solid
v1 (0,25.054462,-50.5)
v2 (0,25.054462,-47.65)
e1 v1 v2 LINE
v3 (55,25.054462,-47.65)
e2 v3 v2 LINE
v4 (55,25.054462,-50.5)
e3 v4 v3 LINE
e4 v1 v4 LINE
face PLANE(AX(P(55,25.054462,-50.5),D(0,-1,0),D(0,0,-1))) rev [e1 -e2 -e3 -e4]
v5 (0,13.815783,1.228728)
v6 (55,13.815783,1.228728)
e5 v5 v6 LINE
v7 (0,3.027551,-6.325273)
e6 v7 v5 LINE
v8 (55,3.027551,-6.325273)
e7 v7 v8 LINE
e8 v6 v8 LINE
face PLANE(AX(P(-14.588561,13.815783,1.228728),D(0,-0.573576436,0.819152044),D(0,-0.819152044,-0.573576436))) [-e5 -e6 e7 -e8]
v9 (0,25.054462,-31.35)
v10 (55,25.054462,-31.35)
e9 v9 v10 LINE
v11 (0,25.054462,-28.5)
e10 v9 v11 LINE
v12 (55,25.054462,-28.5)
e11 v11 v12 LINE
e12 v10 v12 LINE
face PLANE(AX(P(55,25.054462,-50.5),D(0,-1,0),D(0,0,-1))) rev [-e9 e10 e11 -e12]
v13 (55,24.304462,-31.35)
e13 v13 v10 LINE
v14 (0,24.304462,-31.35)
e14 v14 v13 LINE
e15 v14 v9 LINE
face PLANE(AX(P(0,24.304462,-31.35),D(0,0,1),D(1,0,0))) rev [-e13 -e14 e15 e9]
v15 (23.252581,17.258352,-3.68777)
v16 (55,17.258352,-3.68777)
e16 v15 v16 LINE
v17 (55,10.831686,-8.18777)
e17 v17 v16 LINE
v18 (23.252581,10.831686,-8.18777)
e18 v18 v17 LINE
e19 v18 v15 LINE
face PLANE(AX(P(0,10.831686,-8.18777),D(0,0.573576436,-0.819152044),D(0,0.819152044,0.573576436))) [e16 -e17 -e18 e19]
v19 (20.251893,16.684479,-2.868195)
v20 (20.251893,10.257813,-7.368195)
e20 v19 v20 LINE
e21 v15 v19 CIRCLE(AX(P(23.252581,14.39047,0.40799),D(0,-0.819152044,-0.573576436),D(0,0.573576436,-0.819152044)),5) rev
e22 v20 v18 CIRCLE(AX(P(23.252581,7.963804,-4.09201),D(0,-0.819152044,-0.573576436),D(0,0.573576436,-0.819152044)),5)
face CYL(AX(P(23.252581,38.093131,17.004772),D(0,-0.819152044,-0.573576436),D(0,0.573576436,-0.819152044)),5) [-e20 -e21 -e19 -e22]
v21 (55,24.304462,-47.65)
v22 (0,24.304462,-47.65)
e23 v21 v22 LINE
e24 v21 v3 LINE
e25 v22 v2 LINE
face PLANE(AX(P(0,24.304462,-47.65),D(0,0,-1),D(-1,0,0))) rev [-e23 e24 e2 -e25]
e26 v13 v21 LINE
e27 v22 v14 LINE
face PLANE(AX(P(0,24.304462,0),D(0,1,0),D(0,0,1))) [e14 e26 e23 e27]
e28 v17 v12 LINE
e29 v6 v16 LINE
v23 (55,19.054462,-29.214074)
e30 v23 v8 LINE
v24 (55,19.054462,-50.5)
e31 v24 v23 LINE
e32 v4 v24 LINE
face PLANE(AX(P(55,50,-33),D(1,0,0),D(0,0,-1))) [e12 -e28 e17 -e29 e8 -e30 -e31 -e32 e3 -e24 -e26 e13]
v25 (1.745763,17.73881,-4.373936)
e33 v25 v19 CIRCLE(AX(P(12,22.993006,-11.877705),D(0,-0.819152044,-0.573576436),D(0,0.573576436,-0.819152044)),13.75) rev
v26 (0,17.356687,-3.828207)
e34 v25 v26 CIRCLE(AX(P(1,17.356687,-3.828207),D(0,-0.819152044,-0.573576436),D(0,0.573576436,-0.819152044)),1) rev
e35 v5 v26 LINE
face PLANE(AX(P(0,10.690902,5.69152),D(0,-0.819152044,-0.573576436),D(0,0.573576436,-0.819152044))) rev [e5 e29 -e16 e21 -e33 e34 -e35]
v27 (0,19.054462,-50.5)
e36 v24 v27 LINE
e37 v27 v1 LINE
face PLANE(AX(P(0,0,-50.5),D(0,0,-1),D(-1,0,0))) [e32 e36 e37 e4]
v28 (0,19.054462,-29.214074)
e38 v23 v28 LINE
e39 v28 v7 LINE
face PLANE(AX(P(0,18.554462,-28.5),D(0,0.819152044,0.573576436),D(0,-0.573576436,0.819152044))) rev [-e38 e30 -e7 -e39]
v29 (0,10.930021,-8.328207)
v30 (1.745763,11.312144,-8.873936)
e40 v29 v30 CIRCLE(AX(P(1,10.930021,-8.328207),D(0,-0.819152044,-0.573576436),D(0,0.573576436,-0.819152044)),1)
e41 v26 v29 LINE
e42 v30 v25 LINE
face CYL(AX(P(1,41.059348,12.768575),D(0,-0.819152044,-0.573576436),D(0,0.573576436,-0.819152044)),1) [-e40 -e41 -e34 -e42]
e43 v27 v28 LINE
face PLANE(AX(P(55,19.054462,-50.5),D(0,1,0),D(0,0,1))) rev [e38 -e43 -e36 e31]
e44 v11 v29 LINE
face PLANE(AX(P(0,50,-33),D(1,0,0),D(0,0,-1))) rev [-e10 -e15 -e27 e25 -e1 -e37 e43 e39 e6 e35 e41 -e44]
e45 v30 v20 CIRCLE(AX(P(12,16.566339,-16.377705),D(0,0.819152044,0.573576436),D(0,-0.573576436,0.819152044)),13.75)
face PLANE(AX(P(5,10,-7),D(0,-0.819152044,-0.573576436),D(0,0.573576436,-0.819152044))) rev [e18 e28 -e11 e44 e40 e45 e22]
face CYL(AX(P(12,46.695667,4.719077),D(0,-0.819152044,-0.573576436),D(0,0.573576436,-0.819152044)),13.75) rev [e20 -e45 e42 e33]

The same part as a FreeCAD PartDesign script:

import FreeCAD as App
import Part
import Sketcher
from FreeCAD import Vector
Q = App.Units.Quantity


def edges_at(feature, points):
    """Names of the edges that pass closest to the given points."""
    edges = feature.Shape.Edges
    near = lambda p: min(range(len(edges)), key=lambda i: edges[i].distToShape(Part.Vertex(*p))[0])
    return sorted({f"Edge{near(p) + 1}" for p in points})


def add_polygon(sketch, points):
    """Adds a closed chain of lines whose ends are joined by coincident constraints."""
    first, n = sketch.GeometryCount, len(points)
    for a, b in zip(points, points[1:] + points[:1]):
        sketch.addGeometry(Part.LineSegment(App.Vector(*a, 0), App.Vector(*b, 0)), False)
    for i in range(n):
        sketch.addConstraint(Sketcher.Constraint("Coincident", first + i, 2, first + (i + 1) % n, 1))

doc = App.newDocument("Part")
body = doc.addObject("PartDesign::Body", "Body")

# Sketch on XZ plane
sketch1 = body.newObject("Sketcher::SketchObject", "Sketch")
sketch1.AttachmentSupport = (doc.getObject("XZ_Plane"), [""])
sketch1.MapMode = "FlatFace"
add_polygon(sketch1, [(0, -33), (0, 0), (55, 0), (55, -33)])  # lines 0-3
sketch1.addConstraint([
    Sketcher.Constraint("Vertical", 0),
    Sketcher.Constraint("Horizontal", 1),
    Sketcher.Constraint("Vertical", 2),
    Sketcher.Constraint("Horizontal", 3),
    Sketcher.Constraint("Coincident", 0, 2, -1, 1),
    Sketcher.Constraint("DistanceX", 1, 1, 1, 2, Q("55 mm")),
    Sketcher.Constraint("DistanceY", 0, 1, 0, 2, Q("33 mm")),
])
pad1 = body.newObject("PartDesign::Pad", "Pad")
pad1.Profile = sketch1
pad1.Length = 50
pad1.Reversed = True

# Sketch on YZ plane
sketch2 = body.newObject("Sketcher::SketchObject", "Sketch001")
sketch2.AttachmentSupport = (doc.getObject("YZ_Plane"), [""])
sketch2.MapMode = "FlatFace"
sketch2.AttachmentOffset = App.Placement(Vector(0, 0, 55), App.Rotation())
add_polygon(sketch2, [(80, -19), (51, 22), (10, -7), (39, -48)])  # lines 0-3
sketch2.addConstraint([
    Sketcher.Constraint("Perpendicular", 0, 1),
    Sketcher.Constraint("Perpendicular", 1, 2),
    Sketcher.Constraint("Perpendicular", 2, 3),
    Sketcher.Constraint("Equal", 0, 1),
    Sketcher.Constraint("Angle", 0, Q("125 deg")),
    Sketcher.Constraint("Distance", 0, Q("50 mm")),
    Sketcher.Constraint("DistanceX", -1, 1, 1, 2, Q("10 mm")),
    Sketcher.Constraint("DistanceY", 1, 2, -1, 1, Q("7 mm")),
])
pocket1 = body.newObject("PartDesign::Pocket", "Pocket")
pocket1.Profile = sketch2
pocket1.Length = 50

# Sketch on YZ plane
sketch3 = body.newObject("Sketcher::SketchObject", "Sketch002")
sketch3.AttachmentSupport = (doc.getObject("YZ_Plane"), [""])
sketch3.MapMode = "FlatFace"
sketch3.AttachmentOffset = App.Placement(Vector(0, 0, 55), App.Rotation())
add_polygon(sketch3, [(25, 3), (19, 11), (11, 6), (16, -2)])  # lines 0-3
sketch3.addConstraint([
    Sketcher.Constraint("Perpendicular", 0, 1),
    Sketcher.Constraint("Perpendicular", 1, 2),
    Sketcher.Constraint("Perpendicular", 2, 3),
    Sketcher.Constraint("Equal", 0, 1),
    Sketcher.Constraint("Angle", 0, Q("125 deg")),
    Sketcher.Constraint("Distance", 0, Q("10 mm")),
    Sketcher.Constraint("DistanceY", 2, 2, -1, 1, Q("2.5 mm")),
    Sketcher.Constraint("DistanceX", -1, 1, 1, 2, Q("10.690902 mm")),
])
pocket2 = body.newObject("PartDesign::Pocket", "Pocket001")
pocket2.Profile = sketch3
pocket2.Type = "ThroughAll"

# Sketch on YZ plane
sketch4 = body.newObject("Sketcher::SketchObject", "Sketch003")
sketch4.AttachmentSupport = (doc.getObject("YZ_Plane"), [""])
sketch4.MapMode = "FlatFace"
sketch4.AttachmentOffset = App.Placement(Vector(0, 0, 55), App.Rotation())
add_polygon(sketch4, [(16.4, -2.5), (10, -7), (10.8, -8.2), (17.3, -3.7)])  # lines 0-3
sketch4.addConstraint([
    Sketcher.Constraint("Perpendicular", 0, 1),
    Sketcher.Constraint("Perpendicular", 1, 2),
    Sketcher.Constraint("Perpendicular", 2, 3),
    Sketcher.Constraint("Angle", 0, Q("-145 deg")),
    Sketcher.Constraint("DistanceX", -1, 1, 0, 2, Q("10 mm")),
    Sketcher.Constraint("DistanceY", 0, 2, -1, 1, Q("7 mm")),
    Sketcher.Constraint("DistanceY", 3, 2, -1, 1, Q("2.5 mm")),
    Sketcher.Constraint("Distance", 1, Q("1.45 mm")),
])
pad2 = body.newObject("PartDesign::Pad", "Pad001")
pad2.Profile = sketch4
pad2.Type = "UpToFirst"
pad2.Reversed = True

# Sketch on an angled plane
sketch5 = body.newObject("Sketcher::SketchObject", "Sketch004")
sketch5.Placement = App.Placement(Vector(0, 3.421177, 2.395534), App.Rotation(Vector(1, 0, 0), Vector(0, 0.573576436, -0.819152044), Vector(0, 0.819152044, 0.573576436), "ZXY"))
sketch5.addGeometry(Part.Circle(Vector(12, 23, 0), Vector(0, 0, 1), 14), False)
sketch5.addConstraint([
    Sketcher.Constraint("Diameter", 0, Q("27.5 mm")),
    Sketcher.Constraint("DistanceX", -1, 1, 0, 3, Q("12 mm")),
    Sketcher.Constraint("DistanceY", -1, 1, 0, 3, Q("22.917892 mm")),
])
pocket3 = body.newObject("PartDesign::Pocket", "Pocket002")
pocket3.Profile = sketch5
pocket3.Type = "ThroughAll"
pocket3.Reversed = True

# Sketch on YZ plane
sketch6 = body.newObject("Sketcher::SketchObject", "Sketch005")
sketch6.AttachmentSupport = (doc.getObject("YZ_Plane"), [""])
sketch6.MapMode = "FlatFace"
sketch6.AttachmentOffset = App.Placement(Vector(0, 0, 55), App.Rotation())
add_polygon(sketch6, [(15, 0), (19, -6), (13, -11), (65, -85), (65, 0)])  # lines 0-4
sketch6.addConstraint([
    Sketcher.Constraint("Vertical", 3),
    Sketcher.Constraint("Horizontal", 4),
    Sketcher.Constraint("PointOnObject", 3, 2, -1),
    Sketcher.Constraint("Perpendicular", 0, 1),
    Sketcher.Constraint("Perpendicular", 1, 2),
    Sketcher.Constraint("DistanceX", 4, 2, 4, 1, Q("50 mm")),
    Sketcher.Constraint("Angle", 0, Q("-55 deg")),
    Sketcher.Constraint("DistanceY", 1, 2, 0, 2, Q("4.5 mm")),
    Sketcher.Constraint("DistanceX", -1, 1, 1, 2, Q("12.716001 mm")),
    Sketcher.Constraint("Distance", 0, Q("7.787139 mm")),
])
pocket4 = body.newObject("PartDesign::Pocket", "Pocket003")
pocket4.Profile = sketch6
pocket4.Type = "ThroughAll"

# Sketch on XZ plane
sketch7 = body.newObject("Sketcher::SketchObject", "Sketch006")
sketch7.AttachmentSupport = (doc.getObject("XZ_Plane"), [""])
sketch7.MapMode = "FlatFace"
sketch7.addGeometry(Part.Circle(Vector(26, -34, 0), Vector(0, 0, 1), 6), False)
sketch7.addConstraint([
    Sketcher.Constraint("Diameter", 0, Q("12 mm")),
    Sketcher.Constraint("DistanceY", 0, 3, -1, 1, Q("34.5 mm")),
    Sketcher.Constraint("DistanceX", -1, 1, 0, 3, Q("25.75 mm")),
])
pocket5 = body.newObject("PartDesign::Pocket", "Pocket004")
pocket5.Profile = sketch7
pocket5.Type = "ThroughAll"

# Sketch on YZ plane
sketch8 = body.newObject("Sketcher::SketchObject", "Sketch007")
sketch8.AttachmentSupport = (doc.getObject("YZ_Plane"), [""])
sketch8.MapMode = "FlatFace"
sketch8.AttachmentOffset = App.Placement(Vector(0, 0, 55), App.Rotation())
add_polygon(sketch8, [(25.1, -28.5), (25.1, -33), (28.2, -33)])  # lines 0-2
sketch8.addConstraint([
    Sketcher.Constraint("Vertical", 0),
    Sketcher.Constraint("Horizontal", 1),
    Sketcher.Constraint("Angle", 2, Q("125 deg")),
    Sketcher.Constraint("DistanceY", 0, 2, 0, 1, Q("4.5 mm")),
    Sketcher.Constraint("DistanceY", 0, 2, -1, 1, Q("33 mm")),
    Sketcher.Constraint("DistanceX", -1, 1, 0, 2, Q("25.054462 mm")),
])
pocket6 = body.newObject("PartDesign::Pocket", "Pocket005")
pocket6.Profile = sketch8
pocket6.Type = "ThroughAll"

# Sketch on XZ plane
sketch9 = body.newObject("Sketcher::SketchObject", "Sketch008")
sketch9.AttachmentSupport = (doc.getObject("XZ_Plane"), [""])
sketch9.MapMode = "FlatFace"
add_polygon(sketch9, [(0, -33), (0, -28.5), (55, -28.5), (55, -33)])  # lines 0-3
sketch9.addConstraint([
    Sketcher.Constraint("Vertical", 0),
    Sketcher.Constraint("Horizontal", 1),
    Sketcher.Constraint("Vertical", 2),
    Sketcher.Constraint("Horizontal", 3),
    Sketcher.Constraint("PointOnObject", 0, 2, -2),
    Sketcher.Constraint("DistanceX", 1, 1, 1, 2, Q("55 mm")),
    Sketcher.Constraint("DistanceY", 0, 1, 0, 2, Q("4.5 mm")),
    Sketcher.Constraint("DistanceY", 2, 2, -1, 1, Q("33 mm")),
])
pocket7 = body.newObject("PartDesign::Pocket", "Pocket006")
pocket7.Profile = sketch9
pocket7.Type = "ThroughAll"
doc.recompute()

fillet = body.newObject("PartDesign::Fillet", "Fillet")
fillet.Base = (pocket7, edges_at(pocket7, [(0, 15.929, -8.629)]))
fillet.Radius = 1
doc.recompute()

fillet2 = body.newObject("PartDesign::Fillet", "Fillet001")
fillet2.Base = (fillet, edges_at(fillet, [(21.439, 14.045, -5.938)]))
fillet2.Radius = 5

# Sketch on YZ plane
sketch10 = body.newObject("Sketcher::SketchObject", "Sketch009")
sketch10.AttachmentSupport = (doc.getObject("YZ_Plane"), [""])
sketch10.MapMode = "FlatFace"
sketch10.AttachmentOffset = App.Placement(Vector(0, 0, 55), App.Rotation())
add_polygon(sketch10, [(19, -28), (4, -8), (15, 0), (0, 0), (0, -28)])  # lines 0-4
sketch10.addConstraint([
    Sketcher.Constraint("Horizontal", 2),
    Sketcher.Constraint("Vertical", 3),
    Sketcher.Constraint("Horizontal", 4),
    Sketcher.Constraint("Coincident", 2, 2, -1, 1),
    Sketcher.Constraint("Perpendicular", 0, 1),
    Sketcher.Constraint("Angle", 0, Q("125 deg")),
    Sketcher.Constraint("DistanceY", 3, 2, 3, 1, Q("28.5 mm")),
    Sketcher.Constraint("Distance", 1, Q("13.169999 mm")),
    Sketcher.Constraint("DistanceX", 2, 2, 2, 1, Q("14.676147 mm")),
])
pocket8 = body.newObject("PartDesign::Pocket", "Pocket007")
pocket8.Profile = sketch10
pocket8.Type = "ThroughAll"

# Sketch on XY plane
sketch11 = body.newObject("Sketcher::SketchObject", "Sketch010")
sketch11.AttachmentSupport = (doc.getObject("XY_Plane"), [""])
sketch11.MapMode = "FlatFace"
sketch11.AttachmentOffset = App.Placement(Vector(0, 0, -28.5), App.Rotation())
add_polygon(sketch11, [(55, 25), (55, 19), (0, 19), (0, 25)])  # lines 0-3
sketch11.addConstraint([
    Sketcher.Constraint("Vertical", 0),
    Sketcher.Constraint("Horizontal", 1),
    Sketcher.Constraint("Vertical", 2),
    Sketcher.Constraint("Horizontal", 3),
    Sketcher.Constraint("PointOnObject", 1, 2, -2),
    Sketcher.Constraint("DistanceX", 1, 2, 1, 1, Q("55 mm")),
    Sketcher.Constraint("DistanceY", 0, 2, 0, 1, Q("6 mm")),
    Sketcher.Constraint("DistanceY", -1, 1, 0, 2, Q("19.054462 mm")),
])
pad3 = body.newObject("PartDesign::Pad", "Pad002")
pad3.Profile = sketch11
pad3.Length = 22
pad3.Reversed = True

# Sketch on YZ plane
sketch12 = body.newObject("Sketcher::SketchObject", "Sketch011")
sketch12.AttachmentSupport = (doc.getObject("YZ_Plane"), [""])
sketch12.MapMode = "FlatFace"
sketch12.AttachmentOffset = App.Placement(Vector(0, 0, 55), App.Rotation())
add_polygon(sketch12, [(11, -18), (25, -38), (25, -28), (16, -15)])  # lines 0-3
sketch12.addConstraint([
    Sketcher.Constraint("Vertical", 1),
    Sketcher.Constraint("Parallel", 0, 2),
    Sketcher.Constraint("Perpendicular", 2, 3),
    Sketcher.Constraint("Angle", 0, Q("-55 deg")),
    Sketcher.Constraint("DistanceY", 1, 2, -1, 1, Q("28.5 mm")),
    Sketcher.Constraint("DistanceY", 2, 2, -1, 1, Q("14.972999 mm")),
    Sketcher.Constraint("DistanceY", 3, 2, -1, 1, Q("18.027001 mm")),
    Sketcher.Constraint("DistanceX", -1, 1, 3, 2, Q("11.221189 mm")),
])
pad4 = body.newObject("PartDesign::Pad", "Pad003")
pad4.Profile = sketch12
pad4.Length = 55
pad4.Reversed = True

# Sketch on XZ plane
sketch13 = body.newObject("Sketcher::SketchObject", "Sketch012")
sketch13.AttachmentSupport = (doc.getObject("XZ_Plane"), [""])
sketch13.MapMode = "FlatFace"
sketch13.AttachmentOffset = App.Placement(Vector(0, 0, -25.054462), App.Rotation())
add_polygon(sketch13, [(0, -48), (0, -31), (55, -31), (55, -48)])  # lines 0-3
sketch13.addConstraint([
    Sketcher.Constraint("Vertical", 0),
    Sketcher.Constraint("Horizontal", 1),
    Sketcher.Constraint("Vertical", 2),
    Sketcher.Constraint("Horizontal", 3),
    Sketcher.Constraint("PointOnObject", 0, 2, -2),
    Sketcher.Constraint("DistanceX", 1, 1, 1, 2, Q("55 mm")),
    Sketcher.Constraint("DistanceY", 0, 1, 0, 2, Q("16.3 mm")),
    Sketcher.Constraint("DistanceY", 0, 2, -1, 1, Q("31.35 mm")),
])
pocket9 = body.newObject("PartDesign::Pocket", "Pocket008")
pocket9.Profile = sketch13
pocket9.Length = 0.75
pocket9.Reversed = True

# Sketch on YZ plane
sketch14 = body.newObject("Sketcher::SketchObject", "Sketch013")
sketch14.AttachmentSupport = (doc.getObject("YZ_Plane"), [""])
sketch14.MapMode = "FlatFace"
sketch14.AttachmentOffset = App.Placement(Vector(0, 0, 55), App.Rotation())
add_polygon(sketch14, [(14.7, 0), (13.8, 1.2), (3, -6.3), (3.9, -7.6)])  # lines 0-3
sketch14.addConstraint([
    Sketcher.Constraint("PointOnObject", 3, 2, -1),
    Sketcher.Constraint("Perpendicular", 0, 1),
    Sketcher.Constraint("Perpendicular", 1, 2),
    Sketcher.Constraint("Perpendicular", 2, 3),
    Sketcher.Constraint("Angle", 0, Q("125 deg")),
    Sketcher.Constraint("Distance", 0, Q("1.5 mm")),
    Sketcher.Constraint("Distance", 1, Q("13.169999 mm")),
    Sketcher.Constraint("DistanceX", -1, 1, 1, 2, Q("3.027551 mm")),
])
pad5 = body.newObject("PartDesign::Pad", "Pad004")
pad5.Profile = sketch14
pad5.Length = 55
pad5.Reversed = True

doc.recompute()
